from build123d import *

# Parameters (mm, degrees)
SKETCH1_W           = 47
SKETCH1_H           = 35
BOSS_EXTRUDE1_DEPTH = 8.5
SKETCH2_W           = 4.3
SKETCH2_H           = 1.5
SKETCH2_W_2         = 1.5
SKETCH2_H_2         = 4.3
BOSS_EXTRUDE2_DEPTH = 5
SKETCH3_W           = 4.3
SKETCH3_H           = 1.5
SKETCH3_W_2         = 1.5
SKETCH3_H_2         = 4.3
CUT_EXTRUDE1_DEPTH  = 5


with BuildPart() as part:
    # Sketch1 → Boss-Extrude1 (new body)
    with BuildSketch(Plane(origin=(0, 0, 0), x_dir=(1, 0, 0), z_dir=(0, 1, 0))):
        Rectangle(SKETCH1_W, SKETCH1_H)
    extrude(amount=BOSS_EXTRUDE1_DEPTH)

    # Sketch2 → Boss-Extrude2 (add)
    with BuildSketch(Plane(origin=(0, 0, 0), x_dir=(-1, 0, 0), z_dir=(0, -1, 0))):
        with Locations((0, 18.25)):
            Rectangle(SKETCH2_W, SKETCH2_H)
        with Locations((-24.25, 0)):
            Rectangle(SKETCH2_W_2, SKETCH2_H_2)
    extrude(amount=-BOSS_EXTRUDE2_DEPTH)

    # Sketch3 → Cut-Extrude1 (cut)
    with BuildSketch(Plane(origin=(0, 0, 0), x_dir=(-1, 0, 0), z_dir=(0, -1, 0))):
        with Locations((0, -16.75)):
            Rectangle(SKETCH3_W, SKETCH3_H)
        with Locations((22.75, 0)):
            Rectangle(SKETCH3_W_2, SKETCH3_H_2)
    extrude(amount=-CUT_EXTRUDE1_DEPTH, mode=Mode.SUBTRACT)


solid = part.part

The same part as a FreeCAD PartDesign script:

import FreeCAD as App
import Part
import Sketcher
from FreeCAD import Vector
Q = App.Units.Quantity


def add_polygon(sketch, points):
    """Adds a closed chain of lines whose ends are joined by coincident constraints."""
    first, n = sketch.GeometryCount, len(points)
    for a, b in zip(points, points[1:] + points[:1]):
        sketch.addGeometry(Part.LineSegment(App.Vector(*a, 0), App.Vector(*b, 0)), False)
    for i in range(n):
        sketch.addConstraint(Sketcher.Constraint("Coincident", first + i, 2, first + (i + 1) % n, 1))

doc = App.newDocument("Part")
body = doc.addObject("PartDesign::Body", "Body")

sketch1 = doc.addObject("Sketcher::SketchObject", "Sketch")
body.addObject(sketch1)
sketch1.AttachmentSupport = (doc.XZ_Plane, [""])
sketch1.MapMode = "FlatFace"
add_polygon(sketch1, [(-23.5, -17.5), (-23.5, 17.5), (23.5, 17.5), (23.5, -17.5)])
sketch1.addConstraint([
    Sketcher.Constraint("Vertical", 0),
    Sketcher.Constraint("Horizontal", 1),
    Sketcher.Constraint("Vertical", 2),
    Sketcher.Constraint("Horizontal", 3),
    Sketcher.Constraint("Symmetric", 0, 2, 2, 2, -1, 1),
    Sketcher.Constraint("DistanceX", 1, 1, 1, 2, Q("47 mm")),
    Sketcher.Constraint("DistanceY", 0, 1, 0, 2, Q("35 mm")),
])
pad1 = doc.addObject("PartDesign::Pad", "Pad")
body.addObject(pad1)
pad1.Profile = sketch1
pad1.Length = 8.5
pad1.Reversed = True

sketch2 = doc.addObject("Sketcher::SketchObject", "Sketch001")
body.addObject(sketch2)
sketch2.AttachmentSupport = (doc.XZ_Plane, [""])
sketch2.MapMode = "FlatFace"
add_polygon(sketch2, [(2.15, -19), (2.15, -17.5), (-2.15, -17.5), (-2.15, -19)])
add_polygon(sketch2, [(25, -2.15), (25, 2.15), (23.5, 2.15), (23.5, -2.15)])
sketch2.addConstraint([
    Sketcher.Constraint("Vertical", 0),
    Sketcher.Constraint("Horizontal", 1),
    Sketcher.Constraint("Vertical", 2),
    Sketcher.Constraint("Horizontal", 3),
    Sketcher.Constraint("Vertical", 4),
    Sketcher.Constraint("Horizontal", 5),
    Sketcher.Constraint("Vertical", 6),
    Sketcher.Constraint("Horizontal", 7),
    Sketcher.Constraint("Equal", 7, 0),
    Sketcher.Constraint("Equal", 3, 4),
    Sketcher.Constraint("DistanceX", 1, 2, 1, 1, Q("4.3 mm")),
    Sketcher.Constraint("DistanceX", 5, 2, 5, 1, Q("1.5 mm")),
    Sketcher.Constraint("DistanceY", 2, 2, -1, 1, Q("19 mm")),
    Sketcher.Constraint("DistanceX", -1, 1, 4, 2, Q("25 mm")),
    Sketcher.Constraint("DistanceX", -1, 1, 0, 2, Q("2.15 mm")),
    Sketcher.Constraint("DistanceY", -1, 1, 4, 2, Q("2.15 mm")),
])
pad2 = doc.addObject("PartDesign::Pad", "Pad001")
body.addObject(pad2)
pad2.Profile = sketch2
pad2.Length = 5
pad2.Reversed = True

sketch3 = doc.addObject("Sketcher::SketchObject", "Sketch002")
body.addObject(sketch3)
sketch3.AttachmentSupport = (doc.XZ_Plane, [""])
sketch3.MapMode = "FlatFace"
add_polygon(sketch3, [(2.15, 16), (2.15, 17.5), (-2.15, 17.5), (-2.15, 16)])
add_polygon(sketch3, [(-22, -2.15), (-22, 2.15), (-23.5, 2.15), (-23.5, -2.15)])
sketch3.addConstraint([
    Sketcher.Constraint("Vertical", 0),
    Sketcher.Constraint("Horizontal", 1),
    Sketcher.Constraint("Vertical", 2),
    Sketcher.Constraint("Horizontal", 3),
    Sketcher.Constraint("Vertical", 4),
    Sketcher.Constraint("Horizontal", 5),
    Sketcher.Constraint("Vertical", 6),
    Sketcher.Constraint("Horizontal", 7),
    Sketcher.Constraint("Equal", 7, 0),
    Sketcher.Constraint("Equal", 3, 4),
    Sketcher.Constraint("DistanceX", 1, 2, 1, 1, Q("4.3 mm")),
    Sketcher.Constraint("DistanceX", 5, 2, 5, 1, Q("1.5 mm")),
    Sketcher.Constraint("DistanceY", -1, 1, 2, 2, Q("16 mm")),
    Sketcher.Constraint("DistanceX", 4, 2, -1, 1, Q("22 mm")),
    Sketcher.Constraint("DistanceX", -1, 1, 0, 2, Q("2.15 mm")),
    Sketcher.Constraint("DistanceY", -1, 1, 4, 2, Q("2.15 mm")),
])
pocket1 = doc.addObject("PartDesign::Pocket", "Pocket")
body.addObject(pocket1)
pocket1.Profile = sketch3
pocket1.Length = 5

doc.recompute()
